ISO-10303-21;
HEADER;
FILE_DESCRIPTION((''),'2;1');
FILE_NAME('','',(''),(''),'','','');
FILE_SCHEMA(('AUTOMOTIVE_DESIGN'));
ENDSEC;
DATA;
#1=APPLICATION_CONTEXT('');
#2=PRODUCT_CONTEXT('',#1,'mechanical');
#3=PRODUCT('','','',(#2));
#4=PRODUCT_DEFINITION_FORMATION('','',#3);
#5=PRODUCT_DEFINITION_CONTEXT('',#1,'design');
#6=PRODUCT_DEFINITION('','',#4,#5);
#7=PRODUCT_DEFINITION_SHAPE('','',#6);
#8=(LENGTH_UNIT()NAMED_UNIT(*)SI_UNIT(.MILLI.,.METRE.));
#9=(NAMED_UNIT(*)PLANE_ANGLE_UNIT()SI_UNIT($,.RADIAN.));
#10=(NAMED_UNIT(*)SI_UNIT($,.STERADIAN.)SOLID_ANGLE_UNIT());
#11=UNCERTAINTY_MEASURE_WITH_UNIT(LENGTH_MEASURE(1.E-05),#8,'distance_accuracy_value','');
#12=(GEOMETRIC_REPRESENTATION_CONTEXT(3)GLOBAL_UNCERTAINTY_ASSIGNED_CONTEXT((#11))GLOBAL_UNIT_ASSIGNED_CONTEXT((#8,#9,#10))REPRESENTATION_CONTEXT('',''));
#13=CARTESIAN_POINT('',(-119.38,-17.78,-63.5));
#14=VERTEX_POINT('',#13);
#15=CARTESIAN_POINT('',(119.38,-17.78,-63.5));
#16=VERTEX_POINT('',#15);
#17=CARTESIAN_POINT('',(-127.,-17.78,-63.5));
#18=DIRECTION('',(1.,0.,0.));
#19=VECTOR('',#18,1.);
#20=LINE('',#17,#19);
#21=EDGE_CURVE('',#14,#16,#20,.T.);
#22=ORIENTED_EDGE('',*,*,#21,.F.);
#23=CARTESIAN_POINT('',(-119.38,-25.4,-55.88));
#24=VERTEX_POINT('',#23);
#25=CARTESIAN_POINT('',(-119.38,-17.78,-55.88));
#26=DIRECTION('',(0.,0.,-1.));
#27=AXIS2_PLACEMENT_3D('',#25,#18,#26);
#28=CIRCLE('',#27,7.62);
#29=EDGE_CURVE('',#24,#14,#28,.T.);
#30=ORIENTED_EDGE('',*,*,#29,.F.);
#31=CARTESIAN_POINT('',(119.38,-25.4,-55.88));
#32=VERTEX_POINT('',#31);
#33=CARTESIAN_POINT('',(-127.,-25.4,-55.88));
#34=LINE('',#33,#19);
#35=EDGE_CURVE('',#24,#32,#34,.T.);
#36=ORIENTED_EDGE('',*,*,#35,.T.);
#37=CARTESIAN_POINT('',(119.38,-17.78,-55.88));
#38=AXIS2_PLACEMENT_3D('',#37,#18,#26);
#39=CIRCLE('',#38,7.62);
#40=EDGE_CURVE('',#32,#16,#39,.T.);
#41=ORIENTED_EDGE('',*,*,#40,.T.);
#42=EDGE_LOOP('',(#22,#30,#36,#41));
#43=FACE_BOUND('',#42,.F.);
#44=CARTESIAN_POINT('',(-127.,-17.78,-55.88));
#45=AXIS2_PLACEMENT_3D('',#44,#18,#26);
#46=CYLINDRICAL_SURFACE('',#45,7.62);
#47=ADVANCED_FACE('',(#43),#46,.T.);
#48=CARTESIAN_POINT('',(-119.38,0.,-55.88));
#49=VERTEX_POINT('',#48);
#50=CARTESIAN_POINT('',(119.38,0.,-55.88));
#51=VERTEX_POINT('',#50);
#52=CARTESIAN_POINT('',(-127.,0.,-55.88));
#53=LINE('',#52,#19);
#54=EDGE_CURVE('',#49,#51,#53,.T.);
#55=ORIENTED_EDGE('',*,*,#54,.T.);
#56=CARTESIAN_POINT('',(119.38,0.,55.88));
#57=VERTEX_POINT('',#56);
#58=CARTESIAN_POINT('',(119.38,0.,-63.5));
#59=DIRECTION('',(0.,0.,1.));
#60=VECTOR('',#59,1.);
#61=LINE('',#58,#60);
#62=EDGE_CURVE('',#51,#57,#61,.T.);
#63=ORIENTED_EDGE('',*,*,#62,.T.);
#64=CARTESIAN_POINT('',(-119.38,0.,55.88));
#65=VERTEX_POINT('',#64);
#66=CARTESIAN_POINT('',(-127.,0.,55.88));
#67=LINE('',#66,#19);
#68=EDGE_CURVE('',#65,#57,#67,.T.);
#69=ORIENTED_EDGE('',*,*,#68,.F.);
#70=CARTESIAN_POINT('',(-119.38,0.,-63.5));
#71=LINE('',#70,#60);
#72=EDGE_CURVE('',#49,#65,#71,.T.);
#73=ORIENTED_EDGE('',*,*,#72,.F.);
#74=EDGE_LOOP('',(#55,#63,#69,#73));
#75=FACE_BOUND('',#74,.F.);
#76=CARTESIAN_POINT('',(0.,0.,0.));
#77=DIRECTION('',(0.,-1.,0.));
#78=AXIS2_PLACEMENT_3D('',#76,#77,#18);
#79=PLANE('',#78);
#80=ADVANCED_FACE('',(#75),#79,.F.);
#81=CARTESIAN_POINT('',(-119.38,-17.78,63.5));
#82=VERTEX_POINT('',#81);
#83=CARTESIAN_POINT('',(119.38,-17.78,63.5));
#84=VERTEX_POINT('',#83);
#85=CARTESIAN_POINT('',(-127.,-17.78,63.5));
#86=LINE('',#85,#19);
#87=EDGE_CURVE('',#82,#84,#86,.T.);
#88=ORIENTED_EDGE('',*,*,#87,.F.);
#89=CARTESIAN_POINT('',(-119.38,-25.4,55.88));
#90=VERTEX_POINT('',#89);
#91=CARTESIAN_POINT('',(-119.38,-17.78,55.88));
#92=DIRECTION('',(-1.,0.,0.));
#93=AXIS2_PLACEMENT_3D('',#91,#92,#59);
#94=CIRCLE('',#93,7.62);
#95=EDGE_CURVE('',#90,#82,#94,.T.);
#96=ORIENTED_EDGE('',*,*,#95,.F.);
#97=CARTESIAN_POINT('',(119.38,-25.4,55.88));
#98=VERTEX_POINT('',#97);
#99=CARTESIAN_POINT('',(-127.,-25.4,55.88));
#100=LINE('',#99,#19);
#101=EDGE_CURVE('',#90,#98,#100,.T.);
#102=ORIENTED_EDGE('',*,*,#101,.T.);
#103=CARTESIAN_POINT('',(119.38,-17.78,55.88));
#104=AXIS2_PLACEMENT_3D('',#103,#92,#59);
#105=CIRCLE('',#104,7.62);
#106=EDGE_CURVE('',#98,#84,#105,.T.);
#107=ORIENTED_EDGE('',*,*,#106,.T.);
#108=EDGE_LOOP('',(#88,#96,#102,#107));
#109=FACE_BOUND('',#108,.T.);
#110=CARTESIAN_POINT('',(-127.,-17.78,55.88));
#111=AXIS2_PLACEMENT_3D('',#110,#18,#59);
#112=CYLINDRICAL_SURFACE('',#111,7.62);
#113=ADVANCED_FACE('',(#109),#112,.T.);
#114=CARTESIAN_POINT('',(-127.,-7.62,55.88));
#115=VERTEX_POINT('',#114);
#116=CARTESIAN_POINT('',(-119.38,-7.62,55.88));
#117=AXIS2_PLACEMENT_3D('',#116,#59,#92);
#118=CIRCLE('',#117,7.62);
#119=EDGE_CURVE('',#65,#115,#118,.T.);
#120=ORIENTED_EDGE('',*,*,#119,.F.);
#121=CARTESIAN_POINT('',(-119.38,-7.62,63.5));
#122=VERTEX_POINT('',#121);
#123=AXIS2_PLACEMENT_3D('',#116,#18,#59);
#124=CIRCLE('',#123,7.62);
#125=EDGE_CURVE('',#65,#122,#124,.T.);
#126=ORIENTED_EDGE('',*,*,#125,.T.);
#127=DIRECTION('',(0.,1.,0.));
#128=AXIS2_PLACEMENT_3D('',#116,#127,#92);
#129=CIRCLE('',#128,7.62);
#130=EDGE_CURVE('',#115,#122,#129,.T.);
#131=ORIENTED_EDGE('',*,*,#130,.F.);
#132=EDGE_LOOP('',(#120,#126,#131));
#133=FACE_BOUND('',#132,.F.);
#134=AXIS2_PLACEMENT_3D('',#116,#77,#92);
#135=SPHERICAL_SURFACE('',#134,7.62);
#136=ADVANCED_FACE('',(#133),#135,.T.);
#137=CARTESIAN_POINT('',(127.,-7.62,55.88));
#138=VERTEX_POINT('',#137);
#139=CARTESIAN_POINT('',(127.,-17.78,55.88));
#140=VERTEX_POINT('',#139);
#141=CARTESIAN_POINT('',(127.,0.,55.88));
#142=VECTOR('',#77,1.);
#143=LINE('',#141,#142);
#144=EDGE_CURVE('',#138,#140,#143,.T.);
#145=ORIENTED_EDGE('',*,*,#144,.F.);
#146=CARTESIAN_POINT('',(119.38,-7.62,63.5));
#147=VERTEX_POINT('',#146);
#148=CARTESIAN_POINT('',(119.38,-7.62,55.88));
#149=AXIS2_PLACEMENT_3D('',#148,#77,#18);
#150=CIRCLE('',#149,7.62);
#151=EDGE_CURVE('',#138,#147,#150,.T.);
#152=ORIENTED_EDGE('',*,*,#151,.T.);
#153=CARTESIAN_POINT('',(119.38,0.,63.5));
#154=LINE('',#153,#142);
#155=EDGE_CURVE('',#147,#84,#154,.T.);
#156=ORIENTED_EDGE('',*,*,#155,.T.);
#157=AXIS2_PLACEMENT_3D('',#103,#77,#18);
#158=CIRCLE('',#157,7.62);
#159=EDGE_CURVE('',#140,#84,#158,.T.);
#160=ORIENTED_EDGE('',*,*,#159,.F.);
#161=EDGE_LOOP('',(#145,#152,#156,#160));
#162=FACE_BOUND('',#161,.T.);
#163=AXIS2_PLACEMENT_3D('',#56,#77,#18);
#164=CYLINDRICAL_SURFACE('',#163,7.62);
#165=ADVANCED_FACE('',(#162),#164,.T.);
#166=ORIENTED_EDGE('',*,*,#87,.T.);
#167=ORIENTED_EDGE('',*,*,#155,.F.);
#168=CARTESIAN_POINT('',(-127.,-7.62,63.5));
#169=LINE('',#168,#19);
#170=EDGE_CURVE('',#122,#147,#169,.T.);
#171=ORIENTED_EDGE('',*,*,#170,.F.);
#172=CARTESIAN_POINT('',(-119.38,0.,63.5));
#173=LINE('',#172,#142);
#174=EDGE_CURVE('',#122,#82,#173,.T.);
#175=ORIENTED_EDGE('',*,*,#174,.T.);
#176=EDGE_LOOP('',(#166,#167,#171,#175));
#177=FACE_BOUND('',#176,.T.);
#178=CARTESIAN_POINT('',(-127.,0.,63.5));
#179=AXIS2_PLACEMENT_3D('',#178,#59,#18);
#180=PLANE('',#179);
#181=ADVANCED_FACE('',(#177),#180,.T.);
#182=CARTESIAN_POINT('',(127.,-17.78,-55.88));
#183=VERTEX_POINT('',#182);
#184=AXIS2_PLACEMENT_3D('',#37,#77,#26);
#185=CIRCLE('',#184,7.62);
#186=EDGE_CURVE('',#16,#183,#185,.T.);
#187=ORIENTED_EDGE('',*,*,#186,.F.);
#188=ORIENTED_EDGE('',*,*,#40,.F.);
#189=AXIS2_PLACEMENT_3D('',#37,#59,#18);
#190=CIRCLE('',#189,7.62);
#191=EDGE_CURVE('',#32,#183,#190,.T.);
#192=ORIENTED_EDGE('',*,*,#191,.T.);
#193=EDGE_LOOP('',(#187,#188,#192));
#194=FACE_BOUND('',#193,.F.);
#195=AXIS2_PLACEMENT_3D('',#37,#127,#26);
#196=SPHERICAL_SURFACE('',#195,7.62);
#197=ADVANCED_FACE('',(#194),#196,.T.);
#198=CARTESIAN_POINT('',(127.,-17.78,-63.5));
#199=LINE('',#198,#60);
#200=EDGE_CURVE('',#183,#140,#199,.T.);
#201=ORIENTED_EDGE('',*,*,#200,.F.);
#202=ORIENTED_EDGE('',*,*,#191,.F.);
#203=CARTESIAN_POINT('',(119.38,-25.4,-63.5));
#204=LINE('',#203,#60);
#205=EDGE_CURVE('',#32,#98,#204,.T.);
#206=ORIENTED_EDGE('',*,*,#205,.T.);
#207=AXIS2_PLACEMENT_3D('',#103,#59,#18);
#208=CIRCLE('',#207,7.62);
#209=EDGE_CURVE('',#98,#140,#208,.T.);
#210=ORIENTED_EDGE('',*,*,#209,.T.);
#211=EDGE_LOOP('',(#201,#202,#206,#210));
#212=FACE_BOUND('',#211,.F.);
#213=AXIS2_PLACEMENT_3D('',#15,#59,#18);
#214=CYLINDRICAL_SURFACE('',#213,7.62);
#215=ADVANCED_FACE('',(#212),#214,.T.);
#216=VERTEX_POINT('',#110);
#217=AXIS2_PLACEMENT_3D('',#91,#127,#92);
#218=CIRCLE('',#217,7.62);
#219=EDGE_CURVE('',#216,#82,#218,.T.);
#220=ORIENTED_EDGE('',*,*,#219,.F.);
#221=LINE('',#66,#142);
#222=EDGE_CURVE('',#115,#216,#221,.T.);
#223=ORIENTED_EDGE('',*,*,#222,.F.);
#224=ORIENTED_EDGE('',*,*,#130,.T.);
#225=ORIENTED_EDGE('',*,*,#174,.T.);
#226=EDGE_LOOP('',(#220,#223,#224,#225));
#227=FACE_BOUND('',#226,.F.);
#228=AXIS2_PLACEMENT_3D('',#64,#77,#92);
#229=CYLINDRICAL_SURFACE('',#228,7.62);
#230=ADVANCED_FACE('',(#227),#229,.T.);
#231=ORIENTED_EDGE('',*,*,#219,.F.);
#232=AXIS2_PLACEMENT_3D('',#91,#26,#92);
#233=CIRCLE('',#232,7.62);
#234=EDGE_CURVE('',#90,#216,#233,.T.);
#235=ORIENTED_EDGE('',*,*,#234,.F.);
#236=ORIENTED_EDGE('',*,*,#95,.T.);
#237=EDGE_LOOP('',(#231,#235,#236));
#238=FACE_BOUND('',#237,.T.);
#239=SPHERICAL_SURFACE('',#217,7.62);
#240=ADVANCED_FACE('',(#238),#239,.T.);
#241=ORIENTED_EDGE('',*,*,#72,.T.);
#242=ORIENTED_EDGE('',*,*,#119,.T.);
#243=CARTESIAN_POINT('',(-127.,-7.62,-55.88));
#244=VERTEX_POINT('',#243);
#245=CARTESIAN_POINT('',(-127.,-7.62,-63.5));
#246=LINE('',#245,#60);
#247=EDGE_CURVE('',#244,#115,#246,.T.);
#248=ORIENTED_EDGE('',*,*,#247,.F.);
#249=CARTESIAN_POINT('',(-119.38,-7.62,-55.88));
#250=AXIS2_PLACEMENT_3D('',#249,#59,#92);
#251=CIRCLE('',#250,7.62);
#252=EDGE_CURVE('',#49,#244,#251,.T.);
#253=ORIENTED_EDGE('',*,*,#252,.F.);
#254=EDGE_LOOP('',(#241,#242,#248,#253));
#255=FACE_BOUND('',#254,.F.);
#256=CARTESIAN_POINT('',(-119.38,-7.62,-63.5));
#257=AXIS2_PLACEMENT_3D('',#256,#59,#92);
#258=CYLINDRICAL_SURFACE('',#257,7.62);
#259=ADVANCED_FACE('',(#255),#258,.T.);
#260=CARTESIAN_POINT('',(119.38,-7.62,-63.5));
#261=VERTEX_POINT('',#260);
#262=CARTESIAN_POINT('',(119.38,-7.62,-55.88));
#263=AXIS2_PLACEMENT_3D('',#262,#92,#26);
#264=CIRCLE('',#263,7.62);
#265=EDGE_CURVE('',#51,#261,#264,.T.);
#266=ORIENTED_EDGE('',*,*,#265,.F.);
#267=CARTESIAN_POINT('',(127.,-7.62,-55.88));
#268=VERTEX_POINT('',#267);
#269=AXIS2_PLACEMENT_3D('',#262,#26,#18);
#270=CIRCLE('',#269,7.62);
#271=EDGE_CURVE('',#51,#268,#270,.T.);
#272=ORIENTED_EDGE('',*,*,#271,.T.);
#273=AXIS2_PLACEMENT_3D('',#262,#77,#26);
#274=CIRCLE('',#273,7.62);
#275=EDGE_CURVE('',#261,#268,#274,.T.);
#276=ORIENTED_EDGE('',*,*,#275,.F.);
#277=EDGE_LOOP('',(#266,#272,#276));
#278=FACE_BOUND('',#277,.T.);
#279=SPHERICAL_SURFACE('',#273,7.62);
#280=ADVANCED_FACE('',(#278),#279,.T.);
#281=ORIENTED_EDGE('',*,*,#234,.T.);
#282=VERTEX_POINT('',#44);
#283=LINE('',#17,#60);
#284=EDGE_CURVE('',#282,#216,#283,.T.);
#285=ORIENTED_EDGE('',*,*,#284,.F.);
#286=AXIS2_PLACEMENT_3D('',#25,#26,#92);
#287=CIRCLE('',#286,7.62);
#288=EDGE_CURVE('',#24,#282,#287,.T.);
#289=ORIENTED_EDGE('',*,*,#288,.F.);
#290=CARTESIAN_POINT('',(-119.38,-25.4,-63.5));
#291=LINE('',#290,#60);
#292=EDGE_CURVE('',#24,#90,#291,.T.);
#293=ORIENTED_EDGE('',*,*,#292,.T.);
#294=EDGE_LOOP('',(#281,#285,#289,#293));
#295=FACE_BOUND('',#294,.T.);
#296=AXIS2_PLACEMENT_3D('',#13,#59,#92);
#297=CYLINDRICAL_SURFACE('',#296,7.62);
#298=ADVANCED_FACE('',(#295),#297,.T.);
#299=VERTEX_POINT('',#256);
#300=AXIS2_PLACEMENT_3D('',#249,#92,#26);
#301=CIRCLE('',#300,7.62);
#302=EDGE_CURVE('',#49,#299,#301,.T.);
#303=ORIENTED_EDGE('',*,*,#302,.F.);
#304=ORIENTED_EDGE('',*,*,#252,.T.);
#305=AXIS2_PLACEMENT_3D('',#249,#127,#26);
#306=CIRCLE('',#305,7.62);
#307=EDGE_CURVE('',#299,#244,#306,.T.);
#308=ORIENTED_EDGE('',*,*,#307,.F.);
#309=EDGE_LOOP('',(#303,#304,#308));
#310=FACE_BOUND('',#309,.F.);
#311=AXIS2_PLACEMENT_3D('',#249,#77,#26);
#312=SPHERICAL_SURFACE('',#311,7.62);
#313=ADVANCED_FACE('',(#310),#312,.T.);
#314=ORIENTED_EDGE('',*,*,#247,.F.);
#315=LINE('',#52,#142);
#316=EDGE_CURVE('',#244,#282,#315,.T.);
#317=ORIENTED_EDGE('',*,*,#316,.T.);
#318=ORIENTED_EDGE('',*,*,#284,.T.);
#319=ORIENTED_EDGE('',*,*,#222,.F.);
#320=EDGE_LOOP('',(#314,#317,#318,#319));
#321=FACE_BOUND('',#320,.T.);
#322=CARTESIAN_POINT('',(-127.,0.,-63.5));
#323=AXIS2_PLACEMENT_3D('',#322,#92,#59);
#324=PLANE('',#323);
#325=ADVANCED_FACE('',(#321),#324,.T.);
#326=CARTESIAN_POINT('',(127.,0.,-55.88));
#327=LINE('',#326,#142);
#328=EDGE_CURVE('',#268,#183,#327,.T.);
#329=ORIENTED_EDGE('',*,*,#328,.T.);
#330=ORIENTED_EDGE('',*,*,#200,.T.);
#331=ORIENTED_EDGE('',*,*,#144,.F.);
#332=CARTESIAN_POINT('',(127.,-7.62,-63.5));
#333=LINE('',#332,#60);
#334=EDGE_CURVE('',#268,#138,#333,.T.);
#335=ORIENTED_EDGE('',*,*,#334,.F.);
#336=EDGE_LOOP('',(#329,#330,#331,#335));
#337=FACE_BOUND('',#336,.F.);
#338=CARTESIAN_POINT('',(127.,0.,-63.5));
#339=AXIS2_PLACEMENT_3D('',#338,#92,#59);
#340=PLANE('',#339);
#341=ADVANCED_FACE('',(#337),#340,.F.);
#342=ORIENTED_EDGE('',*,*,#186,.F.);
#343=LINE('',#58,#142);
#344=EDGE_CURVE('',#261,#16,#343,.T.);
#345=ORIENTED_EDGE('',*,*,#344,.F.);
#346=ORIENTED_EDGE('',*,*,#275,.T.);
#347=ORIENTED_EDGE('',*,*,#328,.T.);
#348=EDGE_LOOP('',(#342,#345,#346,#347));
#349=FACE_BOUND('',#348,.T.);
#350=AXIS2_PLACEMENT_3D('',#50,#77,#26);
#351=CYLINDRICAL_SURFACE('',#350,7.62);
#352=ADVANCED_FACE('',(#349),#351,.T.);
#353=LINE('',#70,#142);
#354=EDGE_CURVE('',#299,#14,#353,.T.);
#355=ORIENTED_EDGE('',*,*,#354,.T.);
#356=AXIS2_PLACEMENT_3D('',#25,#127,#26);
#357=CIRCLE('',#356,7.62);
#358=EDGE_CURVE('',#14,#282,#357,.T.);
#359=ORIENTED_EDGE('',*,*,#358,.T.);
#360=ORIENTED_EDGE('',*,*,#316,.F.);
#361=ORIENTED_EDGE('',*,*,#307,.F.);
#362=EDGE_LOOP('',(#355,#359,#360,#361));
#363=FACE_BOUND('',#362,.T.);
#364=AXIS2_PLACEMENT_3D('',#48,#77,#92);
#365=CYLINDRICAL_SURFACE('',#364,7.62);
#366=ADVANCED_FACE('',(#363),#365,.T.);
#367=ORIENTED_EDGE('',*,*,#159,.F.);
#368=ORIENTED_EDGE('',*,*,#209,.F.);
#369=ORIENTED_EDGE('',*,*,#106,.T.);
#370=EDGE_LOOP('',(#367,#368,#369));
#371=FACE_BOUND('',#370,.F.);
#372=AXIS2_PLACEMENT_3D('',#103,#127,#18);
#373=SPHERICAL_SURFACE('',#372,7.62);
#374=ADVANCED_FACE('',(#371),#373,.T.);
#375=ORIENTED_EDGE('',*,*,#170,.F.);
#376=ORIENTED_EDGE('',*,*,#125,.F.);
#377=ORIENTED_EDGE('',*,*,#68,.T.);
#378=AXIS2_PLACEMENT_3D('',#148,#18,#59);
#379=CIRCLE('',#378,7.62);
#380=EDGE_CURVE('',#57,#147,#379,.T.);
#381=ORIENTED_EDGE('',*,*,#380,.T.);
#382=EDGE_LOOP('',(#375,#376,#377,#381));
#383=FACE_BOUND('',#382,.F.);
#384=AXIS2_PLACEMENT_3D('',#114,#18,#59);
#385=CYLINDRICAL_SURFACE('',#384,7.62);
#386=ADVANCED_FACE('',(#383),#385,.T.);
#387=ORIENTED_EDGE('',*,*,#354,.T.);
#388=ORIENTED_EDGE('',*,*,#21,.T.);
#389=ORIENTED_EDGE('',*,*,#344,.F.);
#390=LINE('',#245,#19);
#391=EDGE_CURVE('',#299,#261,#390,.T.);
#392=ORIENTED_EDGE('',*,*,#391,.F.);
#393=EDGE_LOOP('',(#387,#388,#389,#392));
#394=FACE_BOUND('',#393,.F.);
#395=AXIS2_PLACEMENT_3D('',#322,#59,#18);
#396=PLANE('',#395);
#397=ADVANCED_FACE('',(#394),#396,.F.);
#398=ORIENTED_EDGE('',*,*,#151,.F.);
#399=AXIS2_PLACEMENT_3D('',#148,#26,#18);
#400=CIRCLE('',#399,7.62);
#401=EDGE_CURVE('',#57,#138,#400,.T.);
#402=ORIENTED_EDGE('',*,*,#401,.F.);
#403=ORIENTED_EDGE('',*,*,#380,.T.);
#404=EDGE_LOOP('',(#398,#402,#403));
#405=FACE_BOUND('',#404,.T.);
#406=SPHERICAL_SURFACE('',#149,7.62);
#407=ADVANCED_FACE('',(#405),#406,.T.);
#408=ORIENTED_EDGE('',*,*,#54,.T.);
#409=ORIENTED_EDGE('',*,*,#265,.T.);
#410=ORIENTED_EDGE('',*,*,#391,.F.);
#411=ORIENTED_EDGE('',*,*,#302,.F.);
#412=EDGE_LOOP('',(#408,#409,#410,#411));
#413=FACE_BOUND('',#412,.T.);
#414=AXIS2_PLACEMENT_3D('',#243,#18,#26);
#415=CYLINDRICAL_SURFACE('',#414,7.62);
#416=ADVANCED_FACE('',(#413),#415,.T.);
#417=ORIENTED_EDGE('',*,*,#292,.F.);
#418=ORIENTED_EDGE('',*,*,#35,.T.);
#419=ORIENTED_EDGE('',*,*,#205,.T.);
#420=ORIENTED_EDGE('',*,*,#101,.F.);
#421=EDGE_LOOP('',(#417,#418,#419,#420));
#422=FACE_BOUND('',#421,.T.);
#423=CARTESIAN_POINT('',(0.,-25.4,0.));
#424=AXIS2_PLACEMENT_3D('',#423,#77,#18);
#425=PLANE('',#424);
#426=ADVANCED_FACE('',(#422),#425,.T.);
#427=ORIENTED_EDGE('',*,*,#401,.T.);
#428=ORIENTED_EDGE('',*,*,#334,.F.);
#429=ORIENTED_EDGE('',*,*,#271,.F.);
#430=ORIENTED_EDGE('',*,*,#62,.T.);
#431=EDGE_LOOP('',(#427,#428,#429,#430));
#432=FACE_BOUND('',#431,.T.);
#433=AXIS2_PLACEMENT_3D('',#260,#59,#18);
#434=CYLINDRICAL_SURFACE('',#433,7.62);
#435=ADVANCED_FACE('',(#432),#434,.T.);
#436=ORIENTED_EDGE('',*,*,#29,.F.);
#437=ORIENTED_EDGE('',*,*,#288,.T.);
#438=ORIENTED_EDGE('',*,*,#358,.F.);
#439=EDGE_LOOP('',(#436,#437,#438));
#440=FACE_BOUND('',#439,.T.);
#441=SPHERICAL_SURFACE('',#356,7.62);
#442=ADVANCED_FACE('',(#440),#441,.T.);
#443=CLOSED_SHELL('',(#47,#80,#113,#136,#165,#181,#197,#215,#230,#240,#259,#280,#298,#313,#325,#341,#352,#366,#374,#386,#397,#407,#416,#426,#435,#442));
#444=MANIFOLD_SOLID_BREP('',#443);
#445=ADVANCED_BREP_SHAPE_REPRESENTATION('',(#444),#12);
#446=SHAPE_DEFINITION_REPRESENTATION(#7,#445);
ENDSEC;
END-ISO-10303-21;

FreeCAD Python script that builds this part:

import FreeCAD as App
import Part
import Sketcher

V = App.Vector
Q = App.Units.Quantity

doc = App.newDocument("Part")
body = doc.addObject("PartDesign::Body", "Body")

sketch1 = body.newObject("Sketcher::SketchObject", "Sketch")
sketch1.AttachmentSupport = (doc.getObject("XZ_Plane"), [""])
sketch1.MapMode = "FlatFace"
sketch1.addGeometry(Part.LineSegment(V(-127, 63.5, 0), V(-127, -63.5, 0)), False)
sketch1.addGeometry(Part.LineSegment(V(-127, -63.5, 0), V(127, -63.5, 0)), False)
sketch1.addGeometry(Part.LineSegment(V(127, -63.5, 0), V(127, 63.5, 0)), False)
sketch1.addGeometry(Part.LineSegment(V(127, 63.5, 0), V(-127, 63.5, 0)), False)
sketch1.addConstraint(Sketcher.Constraint("Coincident", 0, 2, 1, 1))
sketch1.addConstraint(Sketcher.Constraint("Coincident", 1, 2, 2, 1))
sketch1.addConstraint(Sketcher.Constraint("Coincident", 2, 2, 3, 1))
sketch1.addConstraint(Sketcher.Constraint("Coincident", 3, 2, 0, 1))
sketch1.addConstraint(Sketcher.Constraint("Vertical", 0))
sketch1.addConstraint(Sketcher.Constraint("Horizontal", 1))
sketch1.addConstraint(Sketcher.Constraint("Vertical", 2))
sketch1.addConstraint(Sketcher.Constraint("Horizontal", 3))
sketch1.addConstraint(Sketcher.Constraint("Symmetric", 0, 2, 2, 2, -1, 1))
sketch1.addConstraint(Sketcher.Constraint("DistanceX", 1, 1, 1, 2, Q("10 in")))
sketch1.addConstraint(Sketcher.Constraint("DistanceY", 0, 2, 0, 1, Q("5 in")))
pad1 = body.newObject("PartDesign::Pad", "Pad")
pad1.Profile = sketch1
pad1.Length = Q("1 in")
doc.recompute()

fillet = body.newObject("PartDesign::Fillet", "Fillet")
fillet.Base = (pad1, ["Edge1"])
fillet.UseAllEdges = True
fillet.Radius = Q("0.3 in")

doc.recompute()
